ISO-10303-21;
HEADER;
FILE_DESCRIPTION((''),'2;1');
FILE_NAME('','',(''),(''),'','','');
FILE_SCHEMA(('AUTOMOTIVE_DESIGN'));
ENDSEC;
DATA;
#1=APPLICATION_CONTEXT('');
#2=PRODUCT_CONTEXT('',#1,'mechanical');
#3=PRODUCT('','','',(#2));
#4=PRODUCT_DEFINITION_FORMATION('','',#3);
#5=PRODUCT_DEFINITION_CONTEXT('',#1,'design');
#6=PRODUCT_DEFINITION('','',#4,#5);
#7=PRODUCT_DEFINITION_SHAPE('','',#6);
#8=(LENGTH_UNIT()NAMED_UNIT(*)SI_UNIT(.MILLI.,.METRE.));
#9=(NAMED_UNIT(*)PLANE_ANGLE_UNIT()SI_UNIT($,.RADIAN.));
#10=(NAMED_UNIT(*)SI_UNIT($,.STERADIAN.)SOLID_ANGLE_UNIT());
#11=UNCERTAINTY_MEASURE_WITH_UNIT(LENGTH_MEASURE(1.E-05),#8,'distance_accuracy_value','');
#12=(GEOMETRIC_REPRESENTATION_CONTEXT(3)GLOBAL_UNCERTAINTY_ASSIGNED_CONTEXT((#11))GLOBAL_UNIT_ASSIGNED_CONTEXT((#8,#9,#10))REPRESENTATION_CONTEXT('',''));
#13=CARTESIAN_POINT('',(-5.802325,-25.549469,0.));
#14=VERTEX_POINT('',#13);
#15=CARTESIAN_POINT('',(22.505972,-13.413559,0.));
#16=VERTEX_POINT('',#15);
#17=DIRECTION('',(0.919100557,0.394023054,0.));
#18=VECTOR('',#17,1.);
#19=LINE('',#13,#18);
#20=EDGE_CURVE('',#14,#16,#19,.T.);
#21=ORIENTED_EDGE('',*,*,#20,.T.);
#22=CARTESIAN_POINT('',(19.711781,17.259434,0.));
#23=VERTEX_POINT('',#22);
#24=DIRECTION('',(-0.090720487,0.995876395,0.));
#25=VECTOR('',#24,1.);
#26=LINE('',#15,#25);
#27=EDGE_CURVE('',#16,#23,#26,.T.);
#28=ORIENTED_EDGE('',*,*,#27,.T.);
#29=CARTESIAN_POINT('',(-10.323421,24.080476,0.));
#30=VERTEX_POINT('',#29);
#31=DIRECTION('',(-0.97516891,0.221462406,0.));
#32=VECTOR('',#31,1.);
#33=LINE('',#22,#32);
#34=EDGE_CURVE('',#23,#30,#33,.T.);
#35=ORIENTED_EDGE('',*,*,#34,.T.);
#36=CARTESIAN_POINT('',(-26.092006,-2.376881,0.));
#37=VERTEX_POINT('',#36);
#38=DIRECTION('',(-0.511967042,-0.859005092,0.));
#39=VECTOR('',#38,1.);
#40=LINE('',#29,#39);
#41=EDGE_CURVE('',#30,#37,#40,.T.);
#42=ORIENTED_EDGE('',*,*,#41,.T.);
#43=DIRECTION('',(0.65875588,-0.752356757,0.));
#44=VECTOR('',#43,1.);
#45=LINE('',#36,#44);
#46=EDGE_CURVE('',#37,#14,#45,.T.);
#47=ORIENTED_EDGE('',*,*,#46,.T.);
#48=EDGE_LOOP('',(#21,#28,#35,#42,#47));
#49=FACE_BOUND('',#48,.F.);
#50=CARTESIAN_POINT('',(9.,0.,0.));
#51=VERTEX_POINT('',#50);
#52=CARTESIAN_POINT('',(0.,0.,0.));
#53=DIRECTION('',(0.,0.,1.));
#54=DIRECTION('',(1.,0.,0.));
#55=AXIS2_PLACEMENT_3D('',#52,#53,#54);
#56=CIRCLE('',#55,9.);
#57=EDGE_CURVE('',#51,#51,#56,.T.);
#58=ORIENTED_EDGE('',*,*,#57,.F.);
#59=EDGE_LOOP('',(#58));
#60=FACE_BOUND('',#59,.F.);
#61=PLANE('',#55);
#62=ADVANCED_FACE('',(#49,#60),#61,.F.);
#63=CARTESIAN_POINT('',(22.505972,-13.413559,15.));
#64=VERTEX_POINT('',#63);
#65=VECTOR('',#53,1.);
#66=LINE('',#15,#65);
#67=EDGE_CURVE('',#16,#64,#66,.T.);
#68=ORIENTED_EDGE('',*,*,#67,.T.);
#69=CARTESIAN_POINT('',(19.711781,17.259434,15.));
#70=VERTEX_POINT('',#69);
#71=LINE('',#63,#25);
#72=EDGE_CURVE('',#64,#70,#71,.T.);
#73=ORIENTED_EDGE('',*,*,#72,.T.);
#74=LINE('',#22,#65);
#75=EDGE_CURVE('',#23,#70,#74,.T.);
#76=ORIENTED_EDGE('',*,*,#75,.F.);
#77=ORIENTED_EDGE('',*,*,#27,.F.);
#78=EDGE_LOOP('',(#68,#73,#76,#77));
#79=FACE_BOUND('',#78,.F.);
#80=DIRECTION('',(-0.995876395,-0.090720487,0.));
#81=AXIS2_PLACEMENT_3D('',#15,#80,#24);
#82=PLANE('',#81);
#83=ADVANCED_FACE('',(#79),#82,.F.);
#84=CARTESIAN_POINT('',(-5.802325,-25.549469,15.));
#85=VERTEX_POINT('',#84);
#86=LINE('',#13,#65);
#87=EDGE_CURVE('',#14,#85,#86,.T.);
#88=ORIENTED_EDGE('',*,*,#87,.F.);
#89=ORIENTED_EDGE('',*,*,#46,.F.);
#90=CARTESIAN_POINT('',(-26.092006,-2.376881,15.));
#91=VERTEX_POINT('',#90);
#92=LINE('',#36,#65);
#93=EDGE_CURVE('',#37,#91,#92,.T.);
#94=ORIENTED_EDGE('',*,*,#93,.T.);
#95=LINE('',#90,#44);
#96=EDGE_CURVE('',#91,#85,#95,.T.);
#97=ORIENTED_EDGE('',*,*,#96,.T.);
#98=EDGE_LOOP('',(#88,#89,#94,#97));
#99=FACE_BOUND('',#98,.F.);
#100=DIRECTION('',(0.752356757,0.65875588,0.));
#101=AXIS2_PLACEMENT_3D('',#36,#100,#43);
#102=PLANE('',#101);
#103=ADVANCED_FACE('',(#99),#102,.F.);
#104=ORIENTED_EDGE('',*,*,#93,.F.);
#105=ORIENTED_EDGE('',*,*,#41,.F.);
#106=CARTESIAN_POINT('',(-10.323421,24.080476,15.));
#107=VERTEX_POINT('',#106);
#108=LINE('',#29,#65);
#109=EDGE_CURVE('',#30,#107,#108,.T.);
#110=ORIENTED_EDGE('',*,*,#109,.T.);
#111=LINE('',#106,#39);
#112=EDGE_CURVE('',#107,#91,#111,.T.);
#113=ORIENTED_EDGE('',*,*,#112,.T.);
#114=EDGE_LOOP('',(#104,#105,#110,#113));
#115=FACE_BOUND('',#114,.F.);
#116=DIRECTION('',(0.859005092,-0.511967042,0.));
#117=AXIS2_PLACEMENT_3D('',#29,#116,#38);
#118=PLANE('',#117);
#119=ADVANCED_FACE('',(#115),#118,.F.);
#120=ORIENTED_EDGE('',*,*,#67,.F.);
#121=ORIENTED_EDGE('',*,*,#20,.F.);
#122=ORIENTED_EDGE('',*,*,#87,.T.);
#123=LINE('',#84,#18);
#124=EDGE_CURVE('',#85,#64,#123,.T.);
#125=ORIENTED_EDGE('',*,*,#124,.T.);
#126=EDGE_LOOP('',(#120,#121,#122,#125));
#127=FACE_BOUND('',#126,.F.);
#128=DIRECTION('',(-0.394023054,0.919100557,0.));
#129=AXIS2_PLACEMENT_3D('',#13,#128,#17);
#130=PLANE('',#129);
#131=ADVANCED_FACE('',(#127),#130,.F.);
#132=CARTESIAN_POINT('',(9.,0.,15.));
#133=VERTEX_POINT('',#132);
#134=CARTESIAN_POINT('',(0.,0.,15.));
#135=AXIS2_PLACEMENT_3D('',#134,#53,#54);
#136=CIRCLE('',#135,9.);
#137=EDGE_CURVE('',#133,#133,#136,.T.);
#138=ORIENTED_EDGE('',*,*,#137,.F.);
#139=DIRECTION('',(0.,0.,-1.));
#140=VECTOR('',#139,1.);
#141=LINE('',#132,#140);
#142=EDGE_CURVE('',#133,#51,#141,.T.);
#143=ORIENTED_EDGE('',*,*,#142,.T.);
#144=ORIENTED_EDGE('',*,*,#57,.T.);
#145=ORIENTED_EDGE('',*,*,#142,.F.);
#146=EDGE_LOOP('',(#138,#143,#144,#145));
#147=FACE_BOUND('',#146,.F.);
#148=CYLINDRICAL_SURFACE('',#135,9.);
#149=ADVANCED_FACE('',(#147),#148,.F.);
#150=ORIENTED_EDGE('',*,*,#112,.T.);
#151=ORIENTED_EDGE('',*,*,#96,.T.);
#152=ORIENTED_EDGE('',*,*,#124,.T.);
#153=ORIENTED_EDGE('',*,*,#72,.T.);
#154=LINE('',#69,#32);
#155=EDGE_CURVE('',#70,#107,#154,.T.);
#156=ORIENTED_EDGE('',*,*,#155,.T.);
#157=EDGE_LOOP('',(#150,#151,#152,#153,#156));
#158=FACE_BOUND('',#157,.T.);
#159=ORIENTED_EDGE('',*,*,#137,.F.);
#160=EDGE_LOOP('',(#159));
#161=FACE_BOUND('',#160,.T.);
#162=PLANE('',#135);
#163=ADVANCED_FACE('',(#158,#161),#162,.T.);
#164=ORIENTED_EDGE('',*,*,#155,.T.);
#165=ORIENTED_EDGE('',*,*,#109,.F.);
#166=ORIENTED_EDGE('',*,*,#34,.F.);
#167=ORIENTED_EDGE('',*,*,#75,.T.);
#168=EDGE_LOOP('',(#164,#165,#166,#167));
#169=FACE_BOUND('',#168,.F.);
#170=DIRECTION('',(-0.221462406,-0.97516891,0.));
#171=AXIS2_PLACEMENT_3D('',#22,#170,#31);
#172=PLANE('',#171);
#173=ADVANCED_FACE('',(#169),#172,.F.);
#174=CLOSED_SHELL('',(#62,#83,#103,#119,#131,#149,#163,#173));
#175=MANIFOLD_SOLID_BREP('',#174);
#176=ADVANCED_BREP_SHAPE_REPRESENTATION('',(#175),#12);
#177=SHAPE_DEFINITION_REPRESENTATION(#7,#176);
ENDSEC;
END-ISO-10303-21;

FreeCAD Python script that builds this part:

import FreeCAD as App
import Part
import Sketcher

V = App.Vector

doc = App.newDocument("Part")
body = doc.addObject("PartDesign::Body", "Body")

# Sketch on XY plane
sketch1 = body.newObject("Sketcher::SketchObject", "Sketch")
sketch1.AttachmentSupport = (doc.getObject("XY_Plane"), [""])
sketch1.MapMode = "FlatFace"
sketch1.addGeometry([
    Part.LineSegment(V(-6, -26, 0), V(23, -13, 0)),  # 0
    Part.LineSegment(V(23, -13, 0), V(20, 17, 0)),  # 1
    Part.LineSegment(V(20, 17, 0), V(-10, 24, 0)),  # 2
    Part.LineSegment(V(-10, 24, 0), V(-26, -2, 0)),  # 3
    Part.LineSegment(V(-26, -2, 0), V(-6, -26, 0)),  # 4
], False)
sketch1.addConstraint([
    Sketcher.Constraint("Coincident", 0, 2, 1, 1),
    Sketcher.Constraint("Coincident", 1, 2, 2, 1),
    Sketcher.Constraint("Coincident", 2, 2, 3, 1),
    Sketcher.Constraint("Coincident", 3, 2, 4, 1),
    Sketcher.Constraint("Coincident", 4, 2, 0, 1),
    Sketcher.Constraint("Equal", 0, 1),
    Sketcher.Constraint("Equal", 1, 2),
    Sketcher.Constraint("Equal", 2, 3),
    Sketcher.Constraint("Equal", 3, 4),
    Sketcher.Constraint("Distance", 0, 30.8),
    Sketcher.Constraint("DistanceX", 2, 2, 1, 2, 30.035202),
    Sketcher.Constraint("DistanceX", -1, 1, 0, 2, 22.505972),
    Sketcher.Constraint("DistanceY", 0, 2, -1, 1, 13.413559),
    Sketcher.Constraint("DistanceX", -1, 1, 1, 2, 19.711781),
    Sketcher.Constraint("DistanceY", 3, 2, -1, 1, 2.376881),
])
pad1 = body.newObject("PartDesign::Pad", "Pad")
pad1.Profile = sketch1
pad1.Length = 15

# Sketch on XY plane
sketch2 = body.newObject("Sketcher::SketchObject", "Sketch001")
sketch2.AttachmentSupport = (doc.getObject("XY_Plane"), [""])
sketch2.MapMode = "FlatFace"
sketch2.AttachmentOffset = App.Placement(V(0, 0, 15), App.Rotation())
sketch2.addGeometry(Part.Circle(V(0, 0, 0), V(0, 0, 1), 9), False)
sketch2.addConstraint([
    Sketcher.Constraint("Coincident", 0, 3, -1, 1),
    Sketcher.Constraint("Diameter", 0, 18.0),
])
pocket1 = body.newObject("PartDesign::Pocket", "Pocket")
pocket1.Profile = sketch2
pocket1.Length = 18

doc.recompute()
